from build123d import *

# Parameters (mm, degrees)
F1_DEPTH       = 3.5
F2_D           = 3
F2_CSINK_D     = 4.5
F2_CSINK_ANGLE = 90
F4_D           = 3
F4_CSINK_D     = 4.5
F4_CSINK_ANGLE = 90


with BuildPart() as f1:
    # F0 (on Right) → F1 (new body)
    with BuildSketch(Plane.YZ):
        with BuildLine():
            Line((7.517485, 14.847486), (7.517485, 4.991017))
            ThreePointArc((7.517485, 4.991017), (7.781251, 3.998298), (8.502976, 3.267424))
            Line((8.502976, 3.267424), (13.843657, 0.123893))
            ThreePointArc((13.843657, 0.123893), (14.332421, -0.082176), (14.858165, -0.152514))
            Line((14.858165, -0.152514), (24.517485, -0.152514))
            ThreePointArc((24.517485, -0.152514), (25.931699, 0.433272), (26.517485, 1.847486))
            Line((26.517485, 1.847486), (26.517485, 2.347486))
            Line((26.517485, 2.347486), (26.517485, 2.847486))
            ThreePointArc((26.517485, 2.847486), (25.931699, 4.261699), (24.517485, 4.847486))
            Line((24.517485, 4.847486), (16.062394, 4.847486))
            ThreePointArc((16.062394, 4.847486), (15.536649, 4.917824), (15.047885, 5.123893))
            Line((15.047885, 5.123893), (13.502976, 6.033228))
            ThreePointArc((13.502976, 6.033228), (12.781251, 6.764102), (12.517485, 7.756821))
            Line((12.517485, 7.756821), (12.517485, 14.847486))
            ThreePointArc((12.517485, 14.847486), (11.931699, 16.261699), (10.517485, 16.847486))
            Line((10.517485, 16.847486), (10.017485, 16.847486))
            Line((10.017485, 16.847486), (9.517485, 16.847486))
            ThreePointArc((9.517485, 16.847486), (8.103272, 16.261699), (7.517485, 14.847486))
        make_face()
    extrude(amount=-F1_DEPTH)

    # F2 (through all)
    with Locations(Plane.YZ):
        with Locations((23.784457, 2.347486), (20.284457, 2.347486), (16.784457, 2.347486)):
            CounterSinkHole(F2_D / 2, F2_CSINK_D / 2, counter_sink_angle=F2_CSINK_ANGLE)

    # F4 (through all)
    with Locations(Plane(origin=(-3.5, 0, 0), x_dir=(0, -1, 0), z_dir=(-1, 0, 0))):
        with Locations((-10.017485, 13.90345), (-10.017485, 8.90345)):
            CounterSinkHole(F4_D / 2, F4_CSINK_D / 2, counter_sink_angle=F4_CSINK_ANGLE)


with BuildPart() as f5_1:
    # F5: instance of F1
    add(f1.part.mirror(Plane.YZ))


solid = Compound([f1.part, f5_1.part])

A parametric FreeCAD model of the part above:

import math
import FreeCAD as App
import Part
import Sketcher

doc = App.newDocument("Part")
body = doc.addObject("PartDesign::Body", "Body")

sketch1 = doc.addObject("Sketcher::SketchObject", "Sketch")
body.addObject(sketch1)
sketch1.AttachmentSupport = (doc.YZ_Plane, [""])
sketch1.MapMode = "FlatFace"
sketch1.addGeometry([
    Part.LineSegment(App.Vector(7.517485, 14.847486, 0), App.Vector(7.517485, 4.991017, 0)),
    Part.ArcOfCircle(Part.Circle(App.Vector(9.517487, 4.991018, 0), App.Vector(0, 0, 1), 2.000002), math.radians(-179.999977), math.radians(-120.48116)),
    Part.LineSegment(App.Vector(8.502976, 3.267424, 0), App.Vector(13.843657, 0.123893, 0)),
    Part.ArcOfCircle(Part.Circle(App.Vector(14.858161, 1.847469, 0), App.Vector(0, 0, 1), 1.999983), math.radians(-120.48124), math.radians(-89.999874)),
    Part.LineSegment(App.Vector(14.858165, -0.152514, 0), App.Vector(24.517485, -0.152514, 0)),
    Part.ArcOfCircle(Part.Circle(App.Vector(24.517486, 1.847485, 0), App.Vector(0, 0, 1), 1.999999), math.radians(-90.000043), math.radians(0.000043)),
    Part.LineSegment(App.Vector(26.517485, 1.847486, 0), App.Vector(26.517485, 2.847486, 0)),
    Part.ArcOfCircle(Part.Circle(App.Vector(24.517485, 2.847486, 0), App.Vector(0, 0, 1), 2), math.radians(0.000006), math.radians(89.999994)),
    Part.LineSegment(App.Vector(24.517485, 4.847486, 0), App.Vector(16.062394, 4.847486, 0)),
    Part.ArcOfCircle(Part.Circle(App.Vector(16.062389, 6.847469, 0), App.Vector(0, 0, 1), 1.999983), math.radians(-120.48124), math.radians(-89.999845)),
    Part.LineSegment(App.Vector(15.047885, 5.123893, 0), App.Vector(13.502976, 6.033228, 0)),
    Part.ArcOfCircle(Part.Circle(App.Vector(14.517487, 7.756822, 0), App.Vector(0, 0, 1), 2.000002), math.radians(-179.999977), math.radians(-120.48116)),
    Part.LineSegment(App.Vector(12.517485, 7.756821, 0), App.Vector(12.517485, 14.847486, 0)),
    Part.ArcOfCircle(Part.Circle(App.Vector(10.517485, 14.847486, 0), App.Vector(0, 0, 1), 2), math.radians(0.000006), math.radians(89.999994)),
    Part.LineSegment(App.Vector(10.517485, 16.847486, 0), App.Vector(9.517485, 16.847486, 0)),
    Part.ArcOfCircle(Part.Circle(App.Vector(9.517487, 14.847484, 0), App.Vector(0, 0, 1), 2.000002), math.radians(90.000055), math.radians(179.999945)),
], False)
sketch1.addConstraint([
    Sketcher.Constraint("Tangent", 0, 2, 1, 1),
    Sketcher.Constraint("Tangent", 1, 2, 2, 1),
    Sketcher.Constraint("Coincident", 2, 2, 3, 1),
    Sketcher.Constraint("Coincident", 3, 2, 4, 1),
    Sketcher.Constraint("Tangent", 4, 2, 5, 1),
    Sketcher.Constraint("Tangent", 5, 2, 6, 1),
    Sketcher.Constraint("Tangent", 6, 2, 7, 1),
    Sketcher.Constraint("Tangent", 7, 2, 8, 1),
    Sketcher.Constraint("Coincident", 8, 2, 9, 2),
    Sketcher.Constraint("Coincident", 9, 1, 10, 1),
    Sketcher.Constraint("Tangent", 10, 2, 11, 2),
    Sketcher.Constraint("Tangent", 11, 1, 12, 1),
    Sketcher.Constraint("Tangent", 12, 2, 13, 1),
    Sketcher.Constraint("Tangent", 13, 2, 14, 1),
    Sketcher.Constraint("Tangent", 14, 2, 15, 1),
    Sketcher.Constraint("Tangent", 15, 2, 0, 1),
    Sketcher.Constraint("Vertical", 0),
    Sketcher.Constraint("Horizontal", 4),
    Sketcher.Constraint("Vertical", 6),
    Sketcher.Constraint("Horizontal", 8),
    Sketcher.Constraint("Vertical", 12),
    Sketcher.Constraint("Horizontal", 14),
    Sketcher.Constraint("Equal", 5, 7),
    Sketcher.Constraint("Equal", 3, 9),
    Sketcher.Constraint("Equal", 7, 11),
    Sketcher.Constraint("Equal", 11, 13),
    Sketcher.Constraint("Equal", 13, 15),
    Sketcher.Constraint("Parallel", 2, 10),
    Sketcher.Constraint("Vertical", 1, 3, 15, 3),
    Sketcher.Constraint("Equal", 14, 6),
    Sketcher.Constraint("Radius", 5, 1.999999),
    Sketcher.Constraint("DistanceX", 14, 2, 14, 1, 1.0),
    Sketcher.Constraint("DistanceX", 1, 3, 5, 3, 14.999999),
    Sketcher.Constraint("DistanceY", 7, 3, 13, 3, 12.0),
    Sketcher.Constraint("DistanceY", 2, 2, 9, 1, 5.0),
    Sketcher.Constraint("Radius", 3, 1.999983),
    Sketcher.Constraint("DistanceX", 4, 1, 4, 2, 9.65932),
    Sketcher.Constraint("DistanceX", 8, 2, 8, 1, 8.455091),
    Sketcher.Constraint("DistanceY", 0, 2, 0, 1, 9.856469),
    Sketcher.Constraint("DistanceX", 1, 3, 9, 3, 6.544902),
    Sketcher.Constraint("DistanceX", 11, 1, 9, 1, 2.5304),
    Sketcher.Constraint("Distance", 2, 6.197149),
    Sketcher.Constraint("DistanceX", -1, 1, 3, 3, 14.858161),
    Sketcher.Constraint("DistanceY", -1, 1, 3, 3, 1.847469),
])
pad1 = doc.addObject("PartDesign::Pad", "Pad")
body.addObject(pad1)
pad1.Profile = sketch1
pad1.Length = 3.5
pad1.Reversed = True

sketch2 = doc.addObject("Sketcher::SketchObject", "Sketch001")
body.addObject(sketch2)
sketch2.AttachmentSupport = (doc.YZ_Plane, [""])
sketch2.MapMode = "FlatFace"
sketch2.addGeometry([
    Part.Circle(App.Vector(23.784457, 2.347486, 0), App.Vector(0, 0, 1), 1.5),
    Part.Circle(App.Vector(20.284457, 2.347486, 0), App.Vector(0, 0, 1), 1.5),
    Part.Circle(App.Vector(16.784457, 2.347486, 0), App.Vector(0, 0, 1), 1.5),
], False)
sketch2.addConstraint([
    Sketcher.Constraint("Equal", 0, 1),
    Sketcher.Constraint("Equal", 1, 2),
    Sketcher.Constraint("Horizontal", 0, 3, 1, 3),
    Sketcher.Constraint("Horizontal", 1, 3, 2, 3),
    Sketcher.Constraint("Diameter", 0, 3.0),
    Sketcher.Constraint("DistanceX", 2, 3, 0, 3, 7.0),
    Sketcher.Constraint("DistanceX", 1, 3, 0, 3, 3.5),
    Sketcher.Constraint("DistanceX", -1, 1, 0, 3, 23.784457),
    Sketcher.Constraint("DistanceY", -1, 1, 0, 3, 2.347486),
])
doc.recompute()
hole = doc.addObject("PartDesign::Hole", "Hole")
body.addObject(hole)
hole.Profile = sketch2
hole.ThreadType = "None"
hole.Diameter = 3
hole.DepthType = "ThroughAll"
hole.HoleCutType = "Countersink"
hole.HoleCutDiameter = 4.5
hole.HoleCutCountersinkAngle = 90

sketch3 = doc.addObject("Sketcher::SketchObject", "Sketch002")
body.addObject(sketch3)
sketch3.AttachmentSupport = (doc.YZ_Plane, [""])
sketch3.MapMode = "FlatFace"
sketch3.AttachmentOffset = App.Placement(App.Vector(0, 0, -3.5), App.Rotation())
sketch3.addGeometry([
    Part.Circle(App.Vector(10.017485, 13.90345, 0), App.Vector(0, 0, 1), 1.5),
    Part.Circle(App.Vector(10.017485, 8.90345, 0), App.Vector(0, 0, 1), 1.5),
], False)
sketch3.addConstraint([
    Sketcher.Constraint("Equal", 0, 1),
    Sketcher.Constraint("Vertical", 0, 3, 1, 3),
    Sketcher.Constraint("Diameter", 0, 3.0),
    Sketcher.Constraint("DistanceY", 1, 3, 0, 3, 5.0),
    Sketcher.Constraint("DistanceY", -1, 1, 0, 3, 13.90345),
    Sketcher.Constraint("DistanceX", -1, 1, 0, 3, 10.017485),
])
doc.recompute()
hole2 = doc.addObject("PartDesign::Hole", "Hole001")
body.addObject(hole2)
hole2.Profile = sketch3
hole2.ThreadType = "None"
hole2.Diameter = 3
hole2.DepthType = "ThroughAll"
hole2.HoleCutType = "Countersink"
hole2.HoleCutDiameter = 4.5
hole2.HoleCutCountersinkAngle = 90
hole2.Reversed = True
body2 = doc.addObject("PartDesign::Body", "Body001")
doc.recompute()

mirroring = doc.addObject("Part::Mirroring", "Mirroring")
mirroring.Source = body
mirroring.Base = App.Vector(0, 0, 0)
mirroring.Normal = App.Vector(1, 0, 0)
body2.BaseFeature = mirroring
doc.recompute()
mirroring.Visibility = False

doc.recompute()
